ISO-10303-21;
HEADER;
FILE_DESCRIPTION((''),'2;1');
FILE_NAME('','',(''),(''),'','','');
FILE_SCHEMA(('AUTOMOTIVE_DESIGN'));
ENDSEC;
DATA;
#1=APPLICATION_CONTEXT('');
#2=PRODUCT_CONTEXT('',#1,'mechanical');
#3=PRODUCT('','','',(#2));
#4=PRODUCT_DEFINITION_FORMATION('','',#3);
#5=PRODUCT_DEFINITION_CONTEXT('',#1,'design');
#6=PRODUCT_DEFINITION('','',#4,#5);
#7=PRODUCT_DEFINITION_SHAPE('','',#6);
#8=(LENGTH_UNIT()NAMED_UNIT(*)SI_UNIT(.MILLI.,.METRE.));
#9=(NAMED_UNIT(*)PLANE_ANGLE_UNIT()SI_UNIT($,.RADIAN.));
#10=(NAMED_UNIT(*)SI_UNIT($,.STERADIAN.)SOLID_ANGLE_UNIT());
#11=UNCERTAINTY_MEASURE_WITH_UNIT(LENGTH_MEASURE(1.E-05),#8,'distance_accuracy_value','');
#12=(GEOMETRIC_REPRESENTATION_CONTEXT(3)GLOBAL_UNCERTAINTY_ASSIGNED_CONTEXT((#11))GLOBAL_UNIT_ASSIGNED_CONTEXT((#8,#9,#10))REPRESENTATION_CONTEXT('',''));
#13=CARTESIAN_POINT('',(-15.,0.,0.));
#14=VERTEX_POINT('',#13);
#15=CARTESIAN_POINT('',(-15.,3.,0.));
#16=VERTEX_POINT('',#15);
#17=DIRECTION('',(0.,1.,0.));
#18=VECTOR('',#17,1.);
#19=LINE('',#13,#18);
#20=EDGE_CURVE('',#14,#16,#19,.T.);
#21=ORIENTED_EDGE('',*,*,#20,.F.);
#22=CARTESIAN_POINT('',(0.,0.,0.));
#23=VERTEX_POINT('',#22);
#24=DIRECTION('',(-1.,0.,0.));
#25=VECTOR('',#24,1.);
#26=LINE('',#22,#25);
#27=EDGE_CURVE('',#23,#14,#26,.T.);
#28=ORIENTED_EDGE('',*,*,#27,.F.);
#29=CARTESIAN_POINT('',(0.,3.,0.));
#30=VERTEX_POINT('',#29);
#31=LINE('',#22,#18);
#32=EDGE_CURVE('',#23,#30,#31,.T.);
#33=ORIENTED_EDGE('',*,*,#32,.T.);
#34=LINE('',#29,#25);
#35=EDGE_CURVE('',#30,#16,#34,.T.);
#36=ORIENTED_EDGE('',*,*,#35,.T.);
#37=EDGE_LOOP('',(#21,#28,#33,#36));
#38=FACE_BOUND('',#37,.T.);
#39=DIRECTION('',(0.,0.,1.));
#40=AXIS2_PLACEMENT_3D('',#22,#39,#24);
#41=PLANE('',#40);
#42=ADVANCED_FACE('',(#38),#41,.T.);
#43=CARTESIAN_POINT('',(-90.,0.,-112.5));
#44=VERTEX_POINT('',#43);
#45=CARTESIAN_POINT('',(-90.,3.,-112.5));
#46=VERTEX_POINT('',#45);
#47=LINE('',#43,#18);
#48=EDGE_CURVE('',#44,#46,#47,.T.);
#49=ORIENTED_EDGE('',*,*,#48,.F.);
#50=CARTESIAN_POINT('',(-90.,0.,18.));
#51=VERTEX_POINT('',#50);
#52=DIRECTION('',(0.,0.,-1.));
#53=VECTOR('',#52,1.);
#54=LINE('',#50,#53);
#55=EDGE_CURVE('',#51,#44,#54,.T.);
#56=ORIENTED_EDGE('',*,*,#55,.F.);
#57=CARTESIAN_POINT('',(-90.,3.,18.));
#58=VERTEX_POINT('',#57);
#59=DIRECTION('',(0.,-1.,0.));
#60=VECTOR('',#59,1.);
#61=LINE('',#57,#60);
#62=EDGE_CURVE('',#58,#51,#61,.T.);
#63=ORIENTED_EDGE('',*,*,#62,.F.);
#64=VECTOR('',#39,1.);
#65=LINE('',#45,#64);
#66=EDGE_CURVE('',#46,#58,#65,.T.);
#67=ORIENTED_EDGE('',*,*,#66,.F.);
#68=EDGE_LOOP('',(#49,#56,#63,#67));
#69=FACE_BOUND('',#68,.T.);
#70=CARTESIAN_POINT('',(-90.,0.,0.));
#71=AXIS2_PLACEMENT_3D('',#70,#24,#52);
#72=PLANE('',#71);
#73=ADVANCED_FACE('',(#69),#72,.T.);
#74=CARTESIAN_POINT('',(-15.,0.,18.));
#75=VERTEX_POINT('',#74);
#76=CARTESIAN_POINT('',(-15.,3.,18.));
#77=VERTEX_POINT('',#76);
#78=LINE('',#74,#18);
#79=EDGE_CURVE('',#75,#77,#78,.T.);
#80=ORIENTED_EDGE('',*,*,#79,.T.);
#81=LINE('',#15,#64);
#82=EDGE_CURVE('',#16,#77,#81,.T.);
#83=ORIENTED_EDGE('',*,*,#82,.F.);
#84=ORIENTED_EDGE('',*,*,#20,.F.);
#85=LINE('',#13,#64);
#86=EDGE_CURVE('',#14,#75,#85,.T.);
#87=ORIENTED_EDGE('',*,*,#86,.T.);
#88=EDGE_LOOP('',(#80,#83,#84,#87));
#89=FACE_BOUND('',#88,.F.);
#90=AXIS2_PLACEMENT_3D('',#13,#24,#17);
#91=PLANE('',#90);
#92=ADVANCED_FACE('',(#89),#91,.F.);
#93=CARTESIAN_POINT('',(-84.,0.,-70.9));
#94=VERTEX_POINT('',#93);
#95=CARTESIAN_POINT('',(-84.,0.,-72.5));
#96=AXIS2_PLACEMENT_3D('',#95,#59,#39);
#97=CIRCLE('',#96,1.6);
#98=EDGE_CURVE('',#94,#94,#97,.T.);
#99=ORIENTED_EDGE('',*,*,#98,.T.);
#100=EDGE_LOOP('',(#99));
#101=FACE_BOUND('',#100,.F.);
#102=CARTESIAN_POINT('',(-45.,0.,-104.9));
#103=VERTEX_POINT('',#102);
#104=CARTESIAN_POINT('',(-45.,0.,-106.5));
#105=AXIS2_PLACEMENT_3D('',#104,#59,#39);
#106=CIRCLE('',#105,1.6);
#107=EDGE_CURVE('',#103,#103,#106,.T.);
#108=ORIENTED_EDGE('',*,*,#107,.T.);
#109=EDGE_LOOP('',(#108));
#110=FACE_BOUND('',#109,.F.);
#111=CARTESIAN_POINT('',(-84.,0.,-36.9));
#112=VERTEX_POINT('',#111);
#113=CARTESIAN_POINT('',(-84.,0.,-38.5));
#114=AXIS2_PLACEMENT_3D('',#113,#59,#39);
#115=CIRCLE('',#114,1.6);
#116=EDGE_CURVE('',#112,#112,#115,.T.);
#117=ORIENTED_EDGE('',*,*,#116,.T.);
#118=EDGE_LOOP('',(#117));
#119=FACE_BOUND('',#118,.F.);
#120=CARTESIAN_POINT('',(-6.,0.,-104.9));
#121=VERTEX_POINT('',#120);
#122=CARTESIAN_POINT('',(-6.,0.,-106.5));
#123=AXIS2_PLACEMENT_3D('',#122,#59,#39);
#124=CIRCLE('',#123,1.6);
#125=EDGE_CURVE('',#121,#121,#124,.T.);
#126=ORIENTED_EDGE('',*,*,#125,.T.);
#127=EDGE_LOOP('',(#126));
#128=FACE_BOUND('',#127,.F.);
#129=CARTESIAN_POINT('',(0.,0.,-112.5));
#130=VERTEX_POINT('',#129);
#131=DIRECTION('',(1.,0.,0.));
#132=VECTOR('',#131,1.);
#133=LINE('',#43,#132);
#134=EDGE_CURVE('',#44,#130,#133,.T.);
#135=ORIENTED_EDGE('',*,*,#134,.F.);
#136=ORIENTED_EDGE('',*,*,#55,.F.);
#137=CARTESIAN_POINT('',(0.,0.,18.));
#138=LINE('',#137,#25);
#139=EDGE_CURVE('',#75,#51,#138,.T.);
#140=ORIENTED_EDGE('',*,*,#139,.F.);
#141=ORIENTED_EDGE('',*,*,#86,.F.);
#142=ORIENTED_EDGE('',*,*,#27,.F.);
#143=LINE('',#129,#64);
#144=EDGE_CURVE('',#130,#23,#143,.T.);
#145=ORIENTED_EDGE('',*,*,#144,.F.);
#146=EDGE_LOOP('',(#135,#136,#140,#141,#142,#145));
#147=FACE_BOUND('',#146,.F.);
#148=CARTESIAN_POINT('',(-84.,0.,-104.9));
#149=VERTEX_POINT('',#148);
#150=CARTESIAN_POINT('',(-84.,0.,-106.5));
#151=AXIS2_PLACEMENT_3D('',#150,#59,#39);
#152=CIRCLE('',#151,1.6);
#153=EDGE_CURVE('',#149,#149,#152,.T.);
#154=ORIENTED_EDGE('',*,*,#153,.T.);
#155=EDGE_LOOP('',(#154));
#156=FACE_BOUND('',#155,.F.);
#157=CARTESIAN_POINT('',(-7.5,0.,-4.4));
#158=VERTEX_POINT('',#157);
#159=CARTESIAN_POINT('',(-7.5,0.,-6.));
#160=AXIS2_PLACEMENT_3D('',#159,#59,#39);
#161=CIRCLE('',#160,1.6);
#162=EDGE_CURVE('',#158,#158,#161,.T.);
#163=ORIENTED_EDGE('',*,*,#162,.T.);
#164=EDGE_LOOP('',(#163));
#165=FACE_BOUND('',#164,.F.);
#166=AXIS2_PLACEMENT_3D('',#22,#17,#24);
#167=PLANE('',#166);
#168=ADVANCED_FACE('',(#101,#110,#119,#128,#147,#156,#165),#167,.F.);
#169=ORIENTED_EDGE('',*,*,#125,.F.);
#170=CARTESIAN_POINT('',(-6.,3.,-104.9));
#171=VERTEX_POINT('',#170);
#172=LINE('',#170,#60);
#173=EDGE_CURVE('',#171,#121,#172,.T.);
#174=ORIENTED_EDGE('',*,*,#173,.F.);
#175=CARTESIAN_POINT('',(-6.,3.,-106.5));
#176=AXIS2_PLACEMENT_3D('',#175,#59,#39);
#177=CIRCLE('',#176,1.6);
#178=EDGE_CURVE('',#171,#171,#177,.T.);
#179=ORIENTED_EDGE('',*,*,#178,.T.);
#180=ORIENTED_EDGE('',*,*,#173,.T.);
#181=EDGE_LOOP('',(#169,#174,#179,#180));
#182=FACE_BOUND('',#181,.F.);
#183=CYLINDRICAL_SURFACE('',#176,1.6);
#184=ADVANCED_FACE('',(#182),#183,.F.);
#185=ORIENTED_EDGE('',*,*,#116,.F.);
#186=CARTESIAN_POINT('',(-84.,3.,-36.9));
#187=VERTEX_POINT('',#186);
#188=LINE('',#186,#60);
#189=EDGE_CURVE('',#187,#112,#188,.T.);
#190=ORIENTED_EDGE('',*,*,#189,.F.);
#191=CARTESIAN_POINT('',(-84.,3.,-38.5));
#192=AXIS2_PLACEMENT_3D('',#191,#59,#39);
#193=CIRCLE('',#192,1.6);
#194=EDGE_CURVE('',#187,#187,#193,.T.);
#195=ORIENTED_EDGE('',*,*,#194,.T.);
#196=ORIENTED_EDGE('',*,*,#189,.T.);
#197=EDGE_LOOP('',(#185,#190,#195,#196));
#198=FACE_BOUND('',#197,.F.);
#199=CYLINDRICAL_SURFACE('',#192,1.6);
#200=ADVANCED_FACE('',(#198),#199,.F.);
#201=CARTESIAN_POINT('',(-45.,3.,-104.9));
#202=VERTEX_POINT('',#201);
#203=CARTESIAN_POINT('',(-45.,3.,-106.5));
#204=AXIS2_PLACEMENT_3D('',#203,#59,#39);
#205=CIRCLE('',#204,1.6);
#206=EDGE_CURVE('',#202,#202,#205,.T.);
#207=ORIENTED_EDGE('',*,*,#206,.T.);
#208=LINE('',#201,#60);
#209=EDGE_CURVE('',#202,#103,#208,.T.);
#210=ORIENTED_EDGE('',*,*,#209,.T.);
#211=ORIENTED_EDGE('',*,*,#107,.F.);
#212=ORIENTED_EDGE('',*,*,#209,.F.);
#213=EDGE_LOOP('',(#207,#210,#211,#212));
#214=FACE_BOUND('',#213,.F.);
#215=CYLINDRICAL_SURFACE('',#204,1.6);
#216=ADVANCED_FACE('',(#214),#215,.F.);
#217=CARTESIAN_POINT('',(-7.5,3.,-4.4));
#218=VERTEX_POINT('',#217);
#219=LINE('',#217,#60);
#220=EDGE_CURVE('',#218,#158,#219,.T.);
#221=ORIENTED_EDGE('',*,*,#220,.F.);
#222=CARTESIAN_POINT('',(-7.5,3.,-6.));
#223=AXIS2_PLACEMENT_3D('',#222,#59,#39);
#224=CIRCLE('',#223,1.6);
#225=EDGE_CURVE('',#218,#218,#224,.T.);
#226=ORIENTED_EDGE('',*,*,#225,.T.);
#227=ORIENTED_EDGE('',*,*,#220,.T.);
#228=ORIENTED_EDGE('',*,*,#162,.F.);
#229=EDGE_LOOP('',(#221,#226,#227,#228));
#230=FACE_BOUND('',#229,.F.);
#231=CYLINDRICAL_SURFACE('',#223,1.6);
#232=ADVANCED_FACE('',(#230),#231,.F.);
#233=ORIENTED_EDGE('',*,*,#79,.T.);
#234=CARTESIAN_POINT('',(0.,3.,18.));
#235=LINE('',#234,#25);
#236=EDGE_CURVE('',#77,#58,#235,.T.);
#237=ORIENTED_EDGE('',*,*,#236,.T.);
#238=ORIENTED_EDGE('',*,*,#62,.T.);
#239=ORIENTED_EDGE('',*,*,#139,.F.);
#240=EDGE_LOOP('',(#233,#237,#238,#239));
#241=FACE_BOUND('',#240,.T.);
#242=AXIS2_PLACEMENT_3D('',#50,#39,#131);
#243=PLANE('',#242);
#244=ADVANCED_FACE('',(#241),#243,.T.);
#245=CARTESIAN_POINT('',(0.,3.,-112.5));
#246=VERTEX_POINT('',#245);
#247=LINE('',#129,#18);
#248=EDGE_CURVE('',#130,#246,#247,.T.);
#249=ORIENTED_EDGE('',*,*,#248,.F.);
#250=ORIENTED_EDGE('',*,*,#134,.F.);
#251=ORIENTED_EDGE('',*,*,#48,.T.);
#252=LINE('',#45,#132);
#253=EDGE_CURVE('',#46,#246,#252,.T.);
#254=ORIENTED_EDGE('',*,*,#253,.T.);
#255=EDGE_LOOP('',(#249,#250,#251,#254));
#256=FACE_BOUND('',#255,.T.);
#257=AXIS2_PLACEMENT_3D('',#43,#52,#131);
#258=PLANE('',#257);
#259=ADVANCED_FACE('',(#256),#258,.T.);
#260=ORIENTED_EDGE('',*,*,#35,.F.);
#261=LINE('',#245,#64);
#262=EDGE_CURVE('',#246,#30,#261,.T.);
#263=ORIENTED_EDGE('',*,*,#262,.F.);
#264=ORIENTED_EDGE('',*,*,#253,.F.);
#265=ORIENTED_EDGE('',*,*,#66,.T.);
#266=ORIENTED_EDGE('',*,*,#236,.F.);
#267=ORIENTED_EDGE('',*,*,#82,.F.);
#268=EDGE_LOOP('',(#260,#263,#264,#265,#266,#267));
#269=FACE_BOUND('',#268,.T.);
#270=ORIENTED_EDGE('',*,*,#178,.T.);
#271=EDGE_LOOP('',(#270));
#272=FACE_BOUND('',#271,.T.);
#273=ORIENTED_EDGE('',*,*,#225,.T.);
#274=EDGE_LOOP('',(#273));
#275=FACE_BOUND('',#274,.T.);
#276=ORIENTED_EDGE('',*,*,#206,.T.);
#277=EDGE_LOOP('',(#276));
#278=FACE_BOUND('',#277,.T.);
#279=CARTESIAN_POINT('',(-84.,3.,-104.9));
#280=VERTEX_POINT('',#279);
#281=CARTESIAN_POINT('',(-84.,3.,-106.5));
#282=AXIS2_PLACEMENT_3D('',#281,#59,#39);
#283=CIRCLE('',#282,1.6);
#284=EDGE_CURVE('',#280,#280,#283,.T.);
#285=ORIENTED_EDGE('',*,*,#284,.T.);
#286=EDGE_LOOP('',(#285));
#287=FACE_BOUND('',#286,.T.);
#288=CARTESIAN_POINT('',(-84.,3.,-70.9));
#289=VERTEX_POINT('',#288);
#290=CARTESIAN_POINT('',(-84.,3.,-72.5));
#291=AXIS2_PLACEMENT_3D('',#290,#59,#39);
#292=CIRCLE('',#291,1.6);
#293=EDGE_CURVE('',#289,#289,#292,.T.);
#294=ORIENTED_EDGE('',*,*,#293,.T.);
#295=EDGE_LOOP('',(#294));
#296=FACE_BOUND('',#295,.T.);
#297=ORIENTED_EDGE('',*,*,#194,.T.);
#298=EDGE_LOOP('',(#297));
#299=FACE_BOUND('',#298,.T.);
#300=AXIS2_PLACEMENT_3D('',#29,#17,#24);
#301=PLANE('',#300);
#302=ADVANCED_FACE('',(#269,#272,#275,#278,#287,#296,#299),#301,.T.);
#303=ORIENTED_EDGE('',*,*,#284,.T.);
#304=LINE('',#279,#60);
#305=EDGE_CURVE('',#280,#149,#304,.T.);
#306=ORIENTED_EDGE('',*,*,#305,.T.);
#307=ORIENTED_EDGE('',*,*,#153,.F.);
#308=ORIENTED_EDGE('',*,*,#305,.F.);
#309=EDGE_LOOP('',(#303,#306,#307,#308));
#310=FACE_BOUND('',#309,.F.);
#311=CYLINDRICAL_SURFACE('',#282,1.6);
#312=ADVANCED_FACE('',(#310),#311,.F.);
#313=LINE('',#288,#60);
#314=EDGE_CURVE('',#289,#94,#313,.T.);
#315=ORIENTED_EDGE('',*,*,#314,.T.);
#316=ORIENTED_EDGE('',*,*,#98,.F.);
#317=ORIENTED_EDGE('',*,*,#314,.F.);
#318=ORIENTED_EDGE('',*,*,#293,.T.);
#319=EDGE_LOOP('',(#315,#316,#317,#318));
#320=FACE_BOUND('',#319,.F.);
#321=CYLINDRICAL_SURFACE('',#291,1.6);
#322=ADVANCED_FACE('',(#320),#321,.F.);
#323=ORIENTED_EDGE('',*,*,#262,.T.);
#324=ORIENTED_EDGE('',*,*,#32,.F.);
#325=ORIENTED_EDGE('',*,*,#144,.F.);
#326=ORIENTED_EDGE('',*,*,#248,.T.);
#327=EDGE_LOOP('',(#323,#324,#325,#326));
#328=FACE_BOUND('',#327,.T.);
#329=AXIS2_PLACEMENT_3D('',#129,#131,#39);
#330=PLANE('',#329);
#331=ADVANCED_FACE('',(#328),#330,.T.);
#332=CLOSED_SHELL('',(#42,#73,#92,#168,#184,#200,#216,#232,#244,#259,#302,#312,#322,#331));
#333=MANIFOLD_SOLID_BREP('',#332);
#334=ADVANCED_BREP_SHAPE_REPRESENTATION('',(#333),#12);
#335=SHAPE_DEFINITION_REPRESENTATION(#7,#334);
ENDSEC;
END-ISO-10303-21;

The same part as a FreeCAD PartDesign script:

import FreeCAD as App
import Part
import Sketcher
from FreeCAD import Vector


def add_polygon(sketch, points):
    """Adds a closed chain of lines whose ends are joined by coincident constraints."""
    first, n = sketch.GeometryCount, len(points)
    for a, b in zip(points, points[1:] + points[:1]):
        sketch.addGeometry(Part.LineSegment(App.Vector(*a, 0), App.Vector(*b, 0)), False)
    for i in range(n):
        sketch.addConstraint(Sketcher.Constraint("Coincident", first + i, 2, first + (i + 1) % n, 1))

doc = App.newDocument("Part")
body = doc.addObject("PartDesign::Body", "Body")

# Sketch on XZ plane
sketch1 = body.newObject("Sketcher::SketchObject", "Sketch")
sketch1.AttachmentSupport = (doc.getObject("XZ_Plane"), [""])
sketch1.MapMode = "FlatFace"
add_polygon(sketch1, [(-90, 0), (0, 0), (0, -112), (-90, -112)])  # lines 0-3
sketch1.addConstraint([
    Sketcher.Constraint("Horizontal", 0),
    Sketcher.Constraint("Vertical", 1),
    Sketcher.Constraint("Horizontal", 2),
    Sketcher.Constraint("Vertical", 3),
    Sketcher.Constraint("Coincident", 0, 2, -1, 1),
    Sketcher.Constraint("DistanceX", 0, 1, 0, 2, 90.0),
    Sketcher.Constraint("DistanceY", 1, 2, 1, 1, 112.5),
])
pad1 = body.newObject("PartDesign::Pad", "Pad")
pad1.Profile = sketch1
pad1.Length = 3
pad1.Reversed = True

# Sketch on XY plane
sketch2 = body.newObject("Sketcher::SketchObject", "Sketch001")
sketch2.AttachmentSupport = (doc.getObject("XY_Plane"), [""])
sketch2.MapMode = "FlatFace"
add_polygon(sketch2, [(-90, 0), (-15, 0), (-15, 3), (-90, 3)])  # lines 0-3
sketch2.addConstraint([
    Sketcher.Constraint("Horizontal", 0),
    Sketcher.Constraint("Vertical", 1),
    Sketcher.Constraint("Horizontal", 2),
    Sketcher.Constraint("Vertical", 3),
    Sketcher.Constraint("PointOnObject", 0, 2, -1),
    Sketcher.Constraint("DistanceX", 0, 2, -1, 1, 15.0),
    Sketcher.Constraint("DistanceX", 0, 1, 0, 2, 75.0),
    Sketcher.Constraint("DistanceY", 1, 1, 1, 2, 3.0),
])
pad2 = body.newObject("PartDesign::Pad", "Pad001")
pad2.Profile = sketch2
pad2.Length = 18

# Sketch on XZ plane
sketch3 = body.newObject("Sketcher::SketchObject", "Sketch002")
sketch3.AttachmentSupport = (doc.getObject("XZ_Plane"), [""])
sketch3.MapMode = "FlatFace"
sketch3.AttachmentOffset = App.Placement(Vector(0, 0, -3), App.Rotation())
sketch3.addGeometry([
    Part.Circle(Vector(-7.5, -6, 0), Vector(0, 0, 1), 1.6),  # 0
    Part.Circle(Vector(-6, -106.5, 0), Vector(0, 0, 1), 1.6),  # 1
    Part.Circle(Vector(-45, -106.5, 0), Vector(0, 0, 1), 1.6),  # 2
    Part.Circle(Vector(-84, -106.5, 0), Vector(0, 0, 1), 1.6),  # 3
    Part.Circle(Vector(-84, -72.5, 0), Vector(0, 0, 1), 1.6),  # 4
    Part.Circle(Vector(-84, -38.5, 0), Vector(0, 0, 1), 1.6),  # 5
], False)
sketch3.addConstraint([
    Sketcher.Constraint("Equal", 0, 1),
    Sketcher.Constraint("Equal", 1, 2),
    Sketcher.Constraint("Equal", 2, 3),
    Sketcher.Constraint("Equal", 3, 4),
    Sketcher.Constraint("Equal", 4, 5),
    Sketcher.Constraint("Horizontal", 1, 3, 2, 3),
    Sketcher.Constraint("Horizontal", 2, 3, 3, 3),
    Sketcher.Constraint("Vertical", 3, 3, 4, 3),
    Sketcher.Constraint("Vertical", 4, 3, 5, 3),
    Sketcher.Constraint("Diameter", 0, 3.2),
    Sketcher.Constraint("DistanceY", 0, 3, -1, 1, 6.0),
    Sketcher.Constraint("DistanceX", 1, 3, -1, 1, 6.0),
    Sketcher.Constraint("DistanceX", 2, 3, -1, 1, 45.0),
    Sketcher.Constraint("DistanceX", 3, 3, -1, 1, 84.0),
    Sketcher.Constraint("DistanceY", 3, 3, 4, 3, 34.0),
    Sketcher.Constraint("DistanceY", 4, 3, 5, 3, 34.0),
    Sketcher.Constraint("DistanceX", 0, 3, -1, 1, 7.5),
    Sketcher.Constraint("DistanceY", 1, 3, -1, 1, 106.5),
])
doc.recompute()
hole = body.newObject("PartDesign::Hole", "Hole")
hole.Profile = sketch3
hole.ThreadType = "None"
hole.Diameter = 3.2
hole.DepthType = "ThroughAll"
hole.Reversed = True

doc.recompute()
